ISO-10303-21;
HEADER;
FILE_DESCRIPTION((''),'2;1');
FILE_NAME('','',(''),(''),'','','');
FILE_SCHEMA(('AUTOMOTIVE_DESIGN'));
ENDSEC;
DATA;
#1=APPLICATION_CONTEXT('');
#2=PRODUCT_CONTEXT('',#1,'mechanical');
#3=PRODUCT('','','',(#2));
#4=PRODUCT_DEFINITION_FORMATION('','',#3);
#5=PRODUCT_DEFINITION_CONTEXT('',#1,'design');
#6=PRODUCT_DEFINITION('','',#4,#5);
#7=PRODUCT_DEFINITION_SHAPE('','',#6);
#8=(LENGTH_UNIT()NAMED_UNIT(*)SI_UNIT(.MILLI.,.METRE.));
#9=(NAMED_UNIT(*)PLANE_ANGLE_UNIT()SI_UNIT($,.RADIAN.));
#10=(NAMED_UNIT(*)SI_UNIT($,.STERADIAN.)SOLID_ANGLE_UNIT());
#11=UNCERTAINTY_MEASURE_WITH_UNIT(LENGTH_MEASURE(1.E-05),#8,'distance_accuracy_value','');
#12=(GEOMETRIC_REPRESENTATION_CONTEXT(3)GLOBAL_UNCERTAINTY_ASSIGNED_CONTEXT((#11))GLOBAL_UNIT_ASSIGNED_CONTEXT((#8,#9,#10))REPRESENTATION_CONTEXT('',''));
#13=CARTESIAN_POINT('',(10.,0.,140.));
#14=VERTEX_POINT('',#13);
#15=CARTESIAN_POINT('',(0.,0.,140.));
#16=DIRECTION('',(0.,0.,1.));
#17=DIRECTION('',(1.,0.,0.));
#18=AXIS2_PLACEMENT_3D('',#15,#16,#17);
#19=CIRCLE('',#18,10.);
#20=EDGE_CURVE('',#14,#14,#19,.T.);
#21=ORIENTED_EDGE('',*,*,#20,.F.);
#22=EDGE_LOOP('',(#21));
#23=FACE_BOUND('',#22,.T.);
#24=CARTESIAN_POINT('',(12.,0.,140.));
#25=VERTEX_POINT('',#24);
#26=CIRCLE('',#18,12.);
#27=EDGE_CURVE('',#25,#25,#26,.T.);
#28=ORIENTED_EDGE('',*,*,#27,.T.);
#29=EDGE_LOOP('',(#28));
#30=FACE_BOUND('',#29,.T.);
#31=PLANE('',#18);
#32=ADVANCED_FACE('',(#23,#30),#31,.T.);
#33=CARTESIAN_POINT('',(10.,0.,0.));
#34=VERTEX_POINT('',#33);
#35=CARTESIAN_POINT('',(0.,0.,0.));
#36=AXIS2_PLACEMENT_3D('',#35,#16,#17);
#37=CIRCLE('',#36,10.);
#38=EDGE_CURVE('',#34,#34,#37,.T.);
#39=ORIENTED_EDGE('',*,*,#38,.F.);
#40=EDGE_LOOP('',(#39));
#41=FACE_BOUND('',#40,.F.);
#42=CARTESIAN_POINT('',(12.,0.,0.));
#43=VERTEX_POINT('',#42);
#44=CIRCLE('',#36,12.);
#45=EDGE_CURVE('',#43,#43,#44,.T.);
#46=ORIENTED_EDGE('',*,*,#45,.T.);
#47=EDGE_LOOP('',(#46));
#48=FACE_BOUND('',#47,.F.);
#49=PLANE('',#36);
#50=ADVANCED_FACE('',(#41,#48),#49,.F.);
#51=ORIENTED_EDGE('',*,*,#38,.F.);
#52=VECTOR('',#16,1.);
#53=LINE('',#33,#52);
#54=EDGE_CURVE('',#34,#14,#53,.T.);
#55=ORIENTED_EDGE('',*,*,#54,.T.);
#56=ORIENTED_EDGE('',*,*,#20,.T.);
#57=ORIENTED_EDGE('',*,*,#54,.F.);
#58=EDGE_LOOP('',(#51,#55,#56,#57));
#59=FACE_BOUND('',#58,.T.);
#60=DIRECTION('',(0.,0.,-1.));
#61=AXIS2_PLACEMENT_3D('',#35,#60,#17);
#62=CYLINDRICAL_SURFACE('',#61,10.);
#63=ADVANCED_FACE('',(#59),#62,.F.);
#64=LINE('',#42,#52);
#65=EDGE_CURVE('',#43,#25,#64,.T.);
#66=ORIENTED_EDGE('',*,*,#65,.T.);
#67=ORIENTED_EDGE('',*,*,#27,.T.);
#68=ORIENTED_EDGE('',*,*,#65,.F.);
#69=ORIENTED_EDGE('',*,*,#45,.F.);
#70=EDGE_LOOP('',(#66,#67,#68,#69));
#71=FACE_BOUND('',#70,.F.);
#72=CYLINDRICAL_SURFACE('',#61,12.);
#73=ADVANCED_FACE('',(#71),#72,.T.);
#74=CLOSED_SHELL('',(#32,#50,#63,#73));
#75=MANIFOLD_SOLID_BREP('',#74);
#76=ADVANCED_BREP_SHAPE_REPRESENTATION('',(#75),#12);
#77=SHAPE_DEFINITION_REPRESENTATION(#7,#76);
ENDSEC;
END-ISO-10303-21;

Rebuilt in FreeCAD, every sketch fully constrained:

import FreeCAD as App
import Part
import Sketcher

V = App.Vector
Q = App.Units.Quantity

doc = App.newDocument("Part")
params = doc.addObject("Spreadsheet::Sheet", "Params")
for row, (alias, value) in enumerate([
    ("sketch1_diameter", "24 mm"),
    ("sketch1_diameter2", "20 mm"),
    ("pad1_length", "140 mm"),
], start=1):
    params.set(f"A{row}", alias)
    params.set(f"B{row}", "=" + value)
    params.setAlias(f"B{row}", alias)

body = doc.addObject("PartDesign::Body", "Body")

sketch1 = doc.addObject("Sketcher::SketchObject", "Sketch")
body.addObject(sketch1)
sketch1.AttachmentSupport = (doc.XY_Plane, [""])
sketch1.MapMode = "FlatFace"
sketch1.addGeometry(Part.Circle(V(0, 0, 0), V(0, 0, 1), 12), False)
sketch1.addGeometry(Part.Circle(V(0, 0, 0), V(0, 0, 1), 10), False)
sketch1.addConstraint(Sketcher.Constraint("Coincident", 0, 3, -1, 1))
sketch1.addConstraint(Sketcher.Constraint("Coincident", 1, 3, -1, 1))
sketch1.addConstraint(Sketcher.Constraint("Diameter", 0, Q("24 mm")))
sketch1.addConstraint(Sketcher.Constraint("Diameter", 1, Q("20 mm")))
sketch1.setExpression("Constraints[2]", "Params.sketch1_diameter")
sketch1.setExpression("Constraints[3]", "Params.sketch1_diameter2")
pad1 = doc.addObject("PartDesign::Pad", "Pad")
body.addObject(pad1)
pad1.Profile = sketch1
pad1.setExpression("Length", "Params.pad1_length")

doc.recompute()
